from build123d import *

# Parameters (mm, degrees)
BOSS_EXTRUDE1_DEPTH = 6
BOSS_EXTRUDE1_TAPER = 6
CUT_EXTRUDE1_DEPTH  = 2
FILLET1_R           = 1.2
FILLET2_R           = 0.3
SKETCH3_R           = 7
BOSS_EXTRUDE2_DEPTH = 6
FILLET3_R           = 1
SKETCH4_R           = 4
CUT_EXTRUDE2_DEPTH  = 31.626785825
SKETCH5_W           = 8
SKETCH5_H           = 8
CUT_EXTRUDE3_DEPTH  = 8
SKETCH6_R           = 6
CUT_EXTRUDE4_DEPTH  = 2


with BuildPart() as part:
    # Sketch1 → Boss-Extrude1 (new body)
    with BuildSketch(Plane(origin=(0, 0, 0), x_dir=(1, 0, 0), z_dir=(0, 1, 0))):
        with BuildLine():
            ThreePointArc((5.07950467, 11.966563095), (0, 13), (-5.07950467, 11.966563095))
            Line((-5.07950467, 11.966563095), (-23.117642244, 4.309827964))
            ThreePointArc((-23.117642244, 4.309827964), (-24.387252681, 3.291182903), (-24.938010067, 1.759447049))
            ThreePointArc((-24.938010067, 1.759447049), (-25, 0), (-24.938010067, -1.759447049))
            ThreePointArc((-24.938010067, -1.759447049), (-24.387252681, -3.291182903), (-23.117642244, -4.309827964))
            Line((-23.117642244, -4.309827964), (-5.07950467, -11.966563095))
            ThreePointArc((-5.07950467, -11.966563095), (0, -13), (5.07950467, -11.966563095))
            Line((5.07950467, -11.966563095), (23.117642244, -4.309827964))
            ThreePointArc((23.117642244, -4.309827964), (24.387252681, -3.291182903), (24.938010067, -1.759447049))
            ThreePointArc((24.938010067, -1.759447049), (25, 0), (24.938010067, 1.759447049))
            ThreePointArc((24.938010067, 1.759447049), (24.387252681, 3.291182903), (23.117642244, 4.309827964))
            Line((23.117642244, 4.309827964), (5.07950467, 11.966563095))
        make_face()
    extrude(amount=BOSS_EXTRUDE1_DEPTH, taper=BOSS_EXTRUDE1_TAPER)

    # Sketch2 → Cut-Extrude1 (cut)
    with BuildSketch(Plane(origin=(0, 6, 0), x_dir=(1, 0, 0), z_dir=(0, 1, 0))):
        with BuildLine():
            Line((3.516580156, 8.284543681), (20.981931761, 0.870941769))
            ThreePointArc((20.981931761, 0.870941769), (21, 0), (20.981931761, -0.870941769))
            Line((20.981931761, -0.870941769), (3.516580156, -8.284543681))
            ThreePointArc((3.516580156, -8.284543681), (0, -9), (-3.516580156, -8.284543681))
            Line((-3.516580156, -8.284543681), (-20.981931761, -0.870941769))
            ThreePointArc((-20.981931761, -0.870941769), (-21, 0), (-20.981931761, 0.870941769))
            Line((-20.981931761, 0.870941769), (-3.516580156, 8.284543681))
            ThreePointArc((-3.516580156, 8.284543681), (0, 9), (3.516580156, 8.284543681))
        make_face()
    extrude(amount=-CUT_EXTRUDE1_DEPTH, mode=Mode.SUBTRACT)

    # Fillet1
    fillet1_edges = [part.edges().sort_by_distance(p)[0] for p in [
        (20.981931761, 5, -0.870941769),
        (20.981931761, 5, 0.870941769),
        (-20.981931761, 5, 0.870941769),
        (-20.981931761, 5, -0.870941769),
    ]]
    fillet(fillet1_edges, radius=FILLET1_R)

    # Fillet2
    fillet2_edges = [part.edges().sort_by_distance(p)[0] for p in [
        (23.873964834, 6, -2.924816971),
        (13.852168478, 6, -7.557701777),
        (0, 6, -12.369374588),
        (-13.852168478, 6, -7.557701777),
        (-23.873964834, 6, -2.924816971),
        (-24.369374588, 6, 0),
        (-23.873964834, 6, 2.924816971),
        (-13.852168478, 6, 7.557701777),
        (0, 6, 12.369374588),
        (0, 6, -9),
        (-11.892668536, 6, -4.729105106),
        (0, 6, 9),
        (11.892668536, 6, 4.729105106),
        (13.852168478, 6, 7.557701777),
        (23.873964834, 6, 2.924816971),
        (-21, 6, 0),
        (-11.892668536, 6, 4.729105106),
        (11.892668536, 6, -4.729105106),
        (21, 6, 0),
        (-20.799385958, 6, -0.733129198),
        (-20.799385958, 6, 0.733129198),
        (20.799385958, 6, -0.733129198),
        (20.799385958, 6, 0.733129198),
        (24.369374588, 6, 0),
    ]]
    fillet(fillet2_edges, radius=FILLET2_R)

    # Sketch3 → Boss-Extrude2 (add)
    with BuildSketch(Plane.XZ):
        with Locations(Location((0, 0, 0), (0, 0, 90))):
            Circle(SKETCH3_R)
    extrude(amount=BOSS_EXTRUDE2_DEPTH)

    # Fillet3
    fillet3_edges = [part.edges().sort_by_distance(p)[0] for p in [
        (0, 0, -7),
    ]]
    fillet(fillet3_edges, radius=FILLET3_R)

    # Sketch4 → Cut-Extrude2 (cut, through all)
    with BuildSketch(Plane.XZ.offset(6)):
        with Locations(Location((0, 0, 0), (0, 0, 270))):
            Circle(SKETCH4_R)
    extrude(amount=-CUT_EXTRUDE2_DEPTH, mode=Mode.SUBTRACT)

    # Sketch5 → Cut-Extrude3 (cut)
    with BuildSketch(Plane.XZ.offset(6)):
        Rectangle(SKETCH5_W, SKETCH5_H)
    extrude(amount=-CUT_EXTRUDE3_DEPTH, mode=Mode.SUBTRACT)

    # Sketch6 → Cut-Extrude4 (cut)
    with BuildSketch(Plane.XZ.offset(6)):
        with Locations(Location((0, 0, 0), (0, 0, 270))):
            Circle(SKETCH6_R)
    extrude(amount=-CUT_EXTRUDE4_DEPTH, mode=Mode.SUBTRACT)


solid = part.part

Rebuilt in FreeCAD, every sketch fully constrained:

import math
import FreeCAD as App
import Part
import Sketcher
from FreeCAD import Vector
Q = App.Units.Quantity


def edges_at(feature, points):
    """Names of the edges that pass closest to the given points."""
    edges = feature.Shape.Edges
    near = lambda p: min(range(len(edges)), key=lambda i: edges[i].distToShape(Part.Vertex(*p))[0])
    return sorted({f"Edge{near(p) + 1}" for p in points})


def add_polygon(sketch, points):
    """Adds a closed chain of lines whose ends are joined by coincident constraints."""
    first, n = sketch.GeometryCount, len(points)
    for a, b in zip(points, points[1:] + points[:1]):
        sketch.addGeometry(Part.LineSegment(App.Vector(*a, 0), App.Vector(*b, 0)), False)
    for i in range(n):
        sketch.addConstraint(Sketcher.Constraint("Coincident", first + i, 2, first + (i + 1) % n, 1))

doc = App.newDocument("Part")
body = doc.addObject("PartDesign::Body", "Body")

# Sketch on XZ plane
sketch1 = body.newObject("Sketcher::SketchObject", "Sketch")
sketch1.AttachmentSupport = (doc.getObject("XZ_Plane"), [""])
sketch1.MapMode = "FlatFace"
sketch1.addGeometry([
    Part.ArcOfCircle(Part.Circle(Vector(0, 0, 0), Vector(0, 0, 1), 13), math.radians(-113), math.radians(-67)),  # 0
    Part.LineSegment(Vector(-5.079505, -11.966563, 0), Vector(-23.117642, -4.309828, 0)),  # 1
    Part.ArcOfCircle(Part.Circle(Vector(-21.945449, -1.548313, 0), Vector(0, 0, 1), 3), math.radians(-175.964308), math.radians(-113)),  # 2
    Part.ArcOfCircle(Part.Circle(Vector(0, 0, 0), Vector(0, 0, 1), 25), math.radians(175.964308), math.radians(184.035692)),  # 3
    Part.ArcOfCircle(Part.Circle(Vector(-21.945449, 1.548313, 0), Vector(0, 0, 1), 3), math.radians(113), math.radians(175.964308)),  # 4
    Part.LineSegment(Vector(-23.117642, 4.309828, 0), Vector(-5.079505, 11.966563, 0)),  # 5
    Part.ArcOfCircle(Part.Circle(Vector(0, 0, 0), Vector(0, 0, 1), 13), math.radians(67), math.radians(113)),  # 6
    Part.LineSegment(Vector(5.079505, 11.966563, 0), Vector(23.117642, 4.309828, 0)),  # 7
    Part.ArcOfCircle(Part.Circle(Vector(21.945449, 1.548313, 0), Vector(0, 0, 1), 3), math.radians(4.035692), math.radians(67)),  # 8
    Part.ArcOfCircle(Part.Circle(Vector(0, 0, 0), Vector(0, 0, 1), 25), math.radians(-4.035692), math.radians(4.035692)),  # 9
    Part.ArcOfCircle(Part.Circle(Vector(21.945449, -1.548313, 0), Vector(0, 0, 1), 3), math.radians(-67), math.radians(-4.035692)),  # 10
    Part.LineSegment(Vector(23.117642, -4.309828, 0), Vector(5.079505, -11.966563, 0)),  # 11
], False)
sketch1.addConstraint([
    Sketcher.Constraint("Tangent", 0, 1, 1, 1),
    Sketcher.Constraint("Tangent", 1, 2, 2, 2),
    Sketcher.Constraint("Tangent", 2, 1, 3, 2),
    Sketcher.Constraint("Tangent", 3, 1, 4, 2),
    Sketcher.Constraint("Tangent", 4, 1, 5, 1),
    Sketcher.Constraint("Tangent", 5, 2, 6, 2),
    Sketcher.Constraint("Tangent", 6, 1, 7, 1),
    Sketcher.Constraint("Tangent", 7, 2, 8, 2),
    Sketcher.Constraint("Tangent", 8, 1, 9, 2),
    Sketcher.Constraint("Tangent", 9, 1, 10, 2),
    Sketcher.Constraint("Tangent", 10, 1, 11, 1),
    Sketcher.Constraint("Tangent", 11, 2, 0, 2),
    Sketcher.Constraint("Coincident", 0, 3, -1, 1),
    Sketcher.Constraint("Coincident", 3, 3, -1, 1),
    Sketcher.Constraint("Coincident", 6, 3, -1, 1),
    Sketcher.Constraint("Coincident", 9, 3, -1, 1),
    Sketcher.Constraint("Equal", 2, 4),
    Sketcher.Constraint("Equal", 0, 6),
    Sketcher.Constraint("Equal", 4, 8),
    Sketcher.Constraint("Equal", 3, 9),
    Sketcher.Constraint("Equal", 8, 10),
    Sketcher.Constraint("Parallel", 1, 7),
    Sketcher.Constraint("Parallel", 5, 11),
    Sketcher.Constraint("Horizontal", 4, 3, 8, 3),
    Sketcher.Constraint("Radius", 0, Q("13 mm")),
    Sketcher.Constraint("Radius", 2, Q("3 mm")),
    Sketcher.Constraint("Radius", 3, Q("25 mm")),
    Sketcher.Constraint("Angle", 1, Q("157 deg")),
])
pad1 = body.newObject("PartDesign::Pad", "Pad")
pad1.Profile = sketch1
pad1.Length = 6
pad1.Reversed = True
pad1.TaperAngle = -6

# Sketch on XZ plane
sketch2 = body.newObject("Sketcher::SketchObject", "Sketch001")
sketch2.AttachmentSupport = (doc.getObject("XZ_Plane"), [""])
sketch2.MapMode = "FlatFace"
sketch2.AttachmentOffset = App.Placement(Vector(0, 0, -6), App.Rotation())
sketch2.addGeometry([
    Part.LineSegment(Vector(20.981932, -0.870942, 0), Vector(3.51658, -8.284544, 0)),  # 0
    Part.ArcOfCircle(Part.Circle(Vector(0, 0, 0), Vector(0, 0, 1), 9), math.radians(-113), math.radians(-67)),  # 1
    Part.LineSegment(Vector(-3.51658, -8.284544, 0), Vector(-20.981932, -0.870942, 0)),  # 2
    Part.ArcOfCircle(Part.Circle(Vector(0, 0, 0), Vector(0, 0, 1), 21), math.radians(177.623066), math.radians(182.376934)),  # 3
    Part.LineSegment(Vector(-20.981932, 0.870942, 0), Vector(-3.51658, 8.284544, 0)),  # 4
    Part.ArcOfCircle(Part.Circle(Vector(0, 0, 0), Vector(0, 0, 1), 9), math.radians(67), math.radians(113)),  # 5
    Part.LineSegment(Vector(3.51658, 8.284544, 0), Vector(20.981932, 0.870942, 0)),  # 6
    Part.ArcOfCircle(Part.Circle(Vector(0, 0, 0), Vector(0, 0, 1), 21), math.radians(-2.376934), math.radians(2.376934)),  # 7
], False)
sketch2.addConstraint([
    Sketcher.Constraint("Tangent", 0, 2, 1, 2),
    Sketcher.Constraint("Tangent", 1, 1, 2, 1),
    Sketcher.Constraint("Coincident", 2, 2, 3, 2),
    Sketcher.Constraint("Coincident", 3, 1, 4, 1),
    Sketcher.Constraint("Tangent", 4, 2, 5, 2),
    Sketcher.Constraint("Tangent", 5, 1, 6, 1),
    Sketcher.Constraint("Coincident", 6, 2, 7, 2),
    Sketcher.Constraint("Coincident", 7, 1, 0, 1),
    Sketcher.Constraint("Coincident", 1, 3, -1, 1),
    Sketcher.Constraint("Coincident", 3, 3, -1, 1),
    Sketcher.Constraint("Coincident", 5, 3, -1, 1),
    Sketcher.Constraint("Coincident", 7, 3, -1, 1),
    Sketcher.Constraint("Equal", 1, 5),
    Sketcher.Constraint("Equal", 3, 7),
    Sketcher.Constraint("Parallel", 0, 4),
    Sketcher.Constraint("Parallel", 2, 6),
    Sketcher.Constraint("Horizontal", 0, 2, 1, 1),
    Sketcher.Constraint("Radius", 1, Q("9 mm")),
    Sketcher.Constraint("Radius", 3, Q("21 mm")),
    Sketcher.Constraint("Angle", 0, Q("-157 deg")),
])
pocket1 = body.newObject("PartDesign::Pocket", "Pocket")
pocket1.Profile = sketch2
pocket1.Length = 2
pocket1.Reversed = True
doc.recompute()

fillet = body.newObject("PartDesign::Fillet", "Fillet")
fillet.Base = (pocket1, edges_at(pocket1, [
    (20.982, 5, -0.871),
    (20.982, 5, 0.871),
    (-20.982, 5, 0.871),
    (-20.982, 5, -0.871),
]))
fillet.Radius = 1.2
doc.recompute()

fillet2 = body.newObject("PartDesign::Fillet", "Fillet001")
fillet2.Base = (fillet, edges_at(fillet, [
    (23.874, 6, -2.925),
    (13.852, 6, -7.558),
    (0, 6, -12.369),
    (-13.852, 6, -7.558),
    (-23.874, 6, -2.925),
    (-24.369, 6, 0),
    (-23.874, 6, 2.925),
    (-13.852, 6, 7.558),
    (0, 6, 12.369),
    (0, 6, -9),
    (-11.893, 6, -4.729),
    (0, 6, 9),
    (11.893, 6, 4.729),
    (13.852, 6, 7.558),
    (23.874, 6, 2.925),
    (-21, 6, 0),
    (-11.893, 6, 4.729),
    (11.893, 6, -4.729),
    (21, 6, 0),
    (-20.799, 6, -0.733),
    (-20.799, 6, 0.733),
    (20.799, 6, -0.733),
    (20.799, 6, 0.733),
    (24.369, 6, 0),
]))
fillet2.Radius = 0.3

# Sketch on XZ plane
sketch3 = body.newObject("Sketcher::SketchObject", "Sketch002")
sketch3.AttachmentSupport = (doc.getObject("XZ_Plane"), [""])
sketch3.MapMode = "FlatFace"
sketch3.addGeometry(Part.Circle(Vector(0, 0, 0), Vector(0, 0, 1), 7), False)
sketch3.addConstraint([
    Sketcher.Constraint("Coincident", 0, 3, -1, 1),
    Sketcher.Constraint("Diameter", 0, Q("14 mm")),
])
pad2 = body.newObject("PartDesign::Pad", "Pad001")
pad2.Profile = sketch3
pad2.Length = 6
doc.recompute()

fillet3 = body.newObject("PartDesign::Fillet", "Fillet002")
fillet3.Base = (pad2, edges_at(pad2, [(0, 0, -7)]))
fillet3.Radius = 1

# Sketch on XZ plane
sketch4 = body.newObject("Sketcher::SketchObject", "Sketch003")
sketch4.AttachmentSupport = (doc.getObject("XZ_Plane"), [""])
sketch4.MapMode = "FlatFace"
sketch4.AttachmentOffset = App.Placement(Vector(0, 0, 6), App.Rotation())
sketch4.addGeometry(Part.Circle(Vector(0, 0, 0), Vector(0, 0, 1), 4), False)
sketch4.addConstraint([
    Sketcher.Constraint("Coincident", 0, 3, -1, 1),
    Sketcher.Constraint("Diameter", 0, Q("8 mm")),
])
pocket2 = body.newObject("PartDesign::Pocket", "Pocket001")
pocket2.Profile = sketch4
pocket2.Type = "ThroughAll"

# Sketch on XZ plane
sketch5 = body.newObject("Sketcher::SketchObject", "Sketch004")
sketch5.AttachmentSupport = (doc.getObject("XZ_Plane"), [""])
sketch5.MapMode = "FlatFace"
sketch5.AttachmentOffset = App.Placement(Vector(0, 0, 6), App.Rotation())
add_polygon(sketch5, [(-4, 4), (-4, -4), (4, -4), (4, 4)])  # lines 0-3
sketch5.addConstraint([
    Sketcher.Constraint("Vertical", 0),
    Sketcher.Constraint("Horizontal", 1),
    Sketcher.Constraint("Vertical", 2),
    Sketcher.Constraint("Horizontal", 3),
    Sketcher.Constraint("Symmetric", 0, 2, 2, 2, -1, 1),
    Sketcher.Constraint("Equal", 3, 0),
    Sketcher.Constraint("DistanceX", 1, 1, 1, 2, Q("8 mm")),
])
pocket3 = body.newObject("PartDesign::Pocket", "Pocket002")
pocket3.Profile = sketch5
pocket3.Length = 8

# Sketch on XZ plane
sketch6 = body.newObject("Sketcher::SketchObject", "Sketch005")
sketch6.AttachmentSupport = (doc.getObject("XZ_Plane"), [""])
sketch6.MapMode = "FlatFace"
sketch6.AttachmentOffset = App.Placement(Vector(0, 0, 6), App.Rotation())
sketch6.addGeometry(Part.Circle(Vector(0, 0, 0), Vector(0, 0, 1), 6), False)
sketch6.addConstraint([
    Sketcher.Constraint("Coincident", 0, 3, -1, 1),
    Sketcher.Constraint("Diameter", 0, Q("12 mm")),
])
pocket4 = body.newObject("PartDesign::Pocket", "Pocket003")
pocket4.Profile = sketch6
pocket4.Length = 2

doc.recompute()
